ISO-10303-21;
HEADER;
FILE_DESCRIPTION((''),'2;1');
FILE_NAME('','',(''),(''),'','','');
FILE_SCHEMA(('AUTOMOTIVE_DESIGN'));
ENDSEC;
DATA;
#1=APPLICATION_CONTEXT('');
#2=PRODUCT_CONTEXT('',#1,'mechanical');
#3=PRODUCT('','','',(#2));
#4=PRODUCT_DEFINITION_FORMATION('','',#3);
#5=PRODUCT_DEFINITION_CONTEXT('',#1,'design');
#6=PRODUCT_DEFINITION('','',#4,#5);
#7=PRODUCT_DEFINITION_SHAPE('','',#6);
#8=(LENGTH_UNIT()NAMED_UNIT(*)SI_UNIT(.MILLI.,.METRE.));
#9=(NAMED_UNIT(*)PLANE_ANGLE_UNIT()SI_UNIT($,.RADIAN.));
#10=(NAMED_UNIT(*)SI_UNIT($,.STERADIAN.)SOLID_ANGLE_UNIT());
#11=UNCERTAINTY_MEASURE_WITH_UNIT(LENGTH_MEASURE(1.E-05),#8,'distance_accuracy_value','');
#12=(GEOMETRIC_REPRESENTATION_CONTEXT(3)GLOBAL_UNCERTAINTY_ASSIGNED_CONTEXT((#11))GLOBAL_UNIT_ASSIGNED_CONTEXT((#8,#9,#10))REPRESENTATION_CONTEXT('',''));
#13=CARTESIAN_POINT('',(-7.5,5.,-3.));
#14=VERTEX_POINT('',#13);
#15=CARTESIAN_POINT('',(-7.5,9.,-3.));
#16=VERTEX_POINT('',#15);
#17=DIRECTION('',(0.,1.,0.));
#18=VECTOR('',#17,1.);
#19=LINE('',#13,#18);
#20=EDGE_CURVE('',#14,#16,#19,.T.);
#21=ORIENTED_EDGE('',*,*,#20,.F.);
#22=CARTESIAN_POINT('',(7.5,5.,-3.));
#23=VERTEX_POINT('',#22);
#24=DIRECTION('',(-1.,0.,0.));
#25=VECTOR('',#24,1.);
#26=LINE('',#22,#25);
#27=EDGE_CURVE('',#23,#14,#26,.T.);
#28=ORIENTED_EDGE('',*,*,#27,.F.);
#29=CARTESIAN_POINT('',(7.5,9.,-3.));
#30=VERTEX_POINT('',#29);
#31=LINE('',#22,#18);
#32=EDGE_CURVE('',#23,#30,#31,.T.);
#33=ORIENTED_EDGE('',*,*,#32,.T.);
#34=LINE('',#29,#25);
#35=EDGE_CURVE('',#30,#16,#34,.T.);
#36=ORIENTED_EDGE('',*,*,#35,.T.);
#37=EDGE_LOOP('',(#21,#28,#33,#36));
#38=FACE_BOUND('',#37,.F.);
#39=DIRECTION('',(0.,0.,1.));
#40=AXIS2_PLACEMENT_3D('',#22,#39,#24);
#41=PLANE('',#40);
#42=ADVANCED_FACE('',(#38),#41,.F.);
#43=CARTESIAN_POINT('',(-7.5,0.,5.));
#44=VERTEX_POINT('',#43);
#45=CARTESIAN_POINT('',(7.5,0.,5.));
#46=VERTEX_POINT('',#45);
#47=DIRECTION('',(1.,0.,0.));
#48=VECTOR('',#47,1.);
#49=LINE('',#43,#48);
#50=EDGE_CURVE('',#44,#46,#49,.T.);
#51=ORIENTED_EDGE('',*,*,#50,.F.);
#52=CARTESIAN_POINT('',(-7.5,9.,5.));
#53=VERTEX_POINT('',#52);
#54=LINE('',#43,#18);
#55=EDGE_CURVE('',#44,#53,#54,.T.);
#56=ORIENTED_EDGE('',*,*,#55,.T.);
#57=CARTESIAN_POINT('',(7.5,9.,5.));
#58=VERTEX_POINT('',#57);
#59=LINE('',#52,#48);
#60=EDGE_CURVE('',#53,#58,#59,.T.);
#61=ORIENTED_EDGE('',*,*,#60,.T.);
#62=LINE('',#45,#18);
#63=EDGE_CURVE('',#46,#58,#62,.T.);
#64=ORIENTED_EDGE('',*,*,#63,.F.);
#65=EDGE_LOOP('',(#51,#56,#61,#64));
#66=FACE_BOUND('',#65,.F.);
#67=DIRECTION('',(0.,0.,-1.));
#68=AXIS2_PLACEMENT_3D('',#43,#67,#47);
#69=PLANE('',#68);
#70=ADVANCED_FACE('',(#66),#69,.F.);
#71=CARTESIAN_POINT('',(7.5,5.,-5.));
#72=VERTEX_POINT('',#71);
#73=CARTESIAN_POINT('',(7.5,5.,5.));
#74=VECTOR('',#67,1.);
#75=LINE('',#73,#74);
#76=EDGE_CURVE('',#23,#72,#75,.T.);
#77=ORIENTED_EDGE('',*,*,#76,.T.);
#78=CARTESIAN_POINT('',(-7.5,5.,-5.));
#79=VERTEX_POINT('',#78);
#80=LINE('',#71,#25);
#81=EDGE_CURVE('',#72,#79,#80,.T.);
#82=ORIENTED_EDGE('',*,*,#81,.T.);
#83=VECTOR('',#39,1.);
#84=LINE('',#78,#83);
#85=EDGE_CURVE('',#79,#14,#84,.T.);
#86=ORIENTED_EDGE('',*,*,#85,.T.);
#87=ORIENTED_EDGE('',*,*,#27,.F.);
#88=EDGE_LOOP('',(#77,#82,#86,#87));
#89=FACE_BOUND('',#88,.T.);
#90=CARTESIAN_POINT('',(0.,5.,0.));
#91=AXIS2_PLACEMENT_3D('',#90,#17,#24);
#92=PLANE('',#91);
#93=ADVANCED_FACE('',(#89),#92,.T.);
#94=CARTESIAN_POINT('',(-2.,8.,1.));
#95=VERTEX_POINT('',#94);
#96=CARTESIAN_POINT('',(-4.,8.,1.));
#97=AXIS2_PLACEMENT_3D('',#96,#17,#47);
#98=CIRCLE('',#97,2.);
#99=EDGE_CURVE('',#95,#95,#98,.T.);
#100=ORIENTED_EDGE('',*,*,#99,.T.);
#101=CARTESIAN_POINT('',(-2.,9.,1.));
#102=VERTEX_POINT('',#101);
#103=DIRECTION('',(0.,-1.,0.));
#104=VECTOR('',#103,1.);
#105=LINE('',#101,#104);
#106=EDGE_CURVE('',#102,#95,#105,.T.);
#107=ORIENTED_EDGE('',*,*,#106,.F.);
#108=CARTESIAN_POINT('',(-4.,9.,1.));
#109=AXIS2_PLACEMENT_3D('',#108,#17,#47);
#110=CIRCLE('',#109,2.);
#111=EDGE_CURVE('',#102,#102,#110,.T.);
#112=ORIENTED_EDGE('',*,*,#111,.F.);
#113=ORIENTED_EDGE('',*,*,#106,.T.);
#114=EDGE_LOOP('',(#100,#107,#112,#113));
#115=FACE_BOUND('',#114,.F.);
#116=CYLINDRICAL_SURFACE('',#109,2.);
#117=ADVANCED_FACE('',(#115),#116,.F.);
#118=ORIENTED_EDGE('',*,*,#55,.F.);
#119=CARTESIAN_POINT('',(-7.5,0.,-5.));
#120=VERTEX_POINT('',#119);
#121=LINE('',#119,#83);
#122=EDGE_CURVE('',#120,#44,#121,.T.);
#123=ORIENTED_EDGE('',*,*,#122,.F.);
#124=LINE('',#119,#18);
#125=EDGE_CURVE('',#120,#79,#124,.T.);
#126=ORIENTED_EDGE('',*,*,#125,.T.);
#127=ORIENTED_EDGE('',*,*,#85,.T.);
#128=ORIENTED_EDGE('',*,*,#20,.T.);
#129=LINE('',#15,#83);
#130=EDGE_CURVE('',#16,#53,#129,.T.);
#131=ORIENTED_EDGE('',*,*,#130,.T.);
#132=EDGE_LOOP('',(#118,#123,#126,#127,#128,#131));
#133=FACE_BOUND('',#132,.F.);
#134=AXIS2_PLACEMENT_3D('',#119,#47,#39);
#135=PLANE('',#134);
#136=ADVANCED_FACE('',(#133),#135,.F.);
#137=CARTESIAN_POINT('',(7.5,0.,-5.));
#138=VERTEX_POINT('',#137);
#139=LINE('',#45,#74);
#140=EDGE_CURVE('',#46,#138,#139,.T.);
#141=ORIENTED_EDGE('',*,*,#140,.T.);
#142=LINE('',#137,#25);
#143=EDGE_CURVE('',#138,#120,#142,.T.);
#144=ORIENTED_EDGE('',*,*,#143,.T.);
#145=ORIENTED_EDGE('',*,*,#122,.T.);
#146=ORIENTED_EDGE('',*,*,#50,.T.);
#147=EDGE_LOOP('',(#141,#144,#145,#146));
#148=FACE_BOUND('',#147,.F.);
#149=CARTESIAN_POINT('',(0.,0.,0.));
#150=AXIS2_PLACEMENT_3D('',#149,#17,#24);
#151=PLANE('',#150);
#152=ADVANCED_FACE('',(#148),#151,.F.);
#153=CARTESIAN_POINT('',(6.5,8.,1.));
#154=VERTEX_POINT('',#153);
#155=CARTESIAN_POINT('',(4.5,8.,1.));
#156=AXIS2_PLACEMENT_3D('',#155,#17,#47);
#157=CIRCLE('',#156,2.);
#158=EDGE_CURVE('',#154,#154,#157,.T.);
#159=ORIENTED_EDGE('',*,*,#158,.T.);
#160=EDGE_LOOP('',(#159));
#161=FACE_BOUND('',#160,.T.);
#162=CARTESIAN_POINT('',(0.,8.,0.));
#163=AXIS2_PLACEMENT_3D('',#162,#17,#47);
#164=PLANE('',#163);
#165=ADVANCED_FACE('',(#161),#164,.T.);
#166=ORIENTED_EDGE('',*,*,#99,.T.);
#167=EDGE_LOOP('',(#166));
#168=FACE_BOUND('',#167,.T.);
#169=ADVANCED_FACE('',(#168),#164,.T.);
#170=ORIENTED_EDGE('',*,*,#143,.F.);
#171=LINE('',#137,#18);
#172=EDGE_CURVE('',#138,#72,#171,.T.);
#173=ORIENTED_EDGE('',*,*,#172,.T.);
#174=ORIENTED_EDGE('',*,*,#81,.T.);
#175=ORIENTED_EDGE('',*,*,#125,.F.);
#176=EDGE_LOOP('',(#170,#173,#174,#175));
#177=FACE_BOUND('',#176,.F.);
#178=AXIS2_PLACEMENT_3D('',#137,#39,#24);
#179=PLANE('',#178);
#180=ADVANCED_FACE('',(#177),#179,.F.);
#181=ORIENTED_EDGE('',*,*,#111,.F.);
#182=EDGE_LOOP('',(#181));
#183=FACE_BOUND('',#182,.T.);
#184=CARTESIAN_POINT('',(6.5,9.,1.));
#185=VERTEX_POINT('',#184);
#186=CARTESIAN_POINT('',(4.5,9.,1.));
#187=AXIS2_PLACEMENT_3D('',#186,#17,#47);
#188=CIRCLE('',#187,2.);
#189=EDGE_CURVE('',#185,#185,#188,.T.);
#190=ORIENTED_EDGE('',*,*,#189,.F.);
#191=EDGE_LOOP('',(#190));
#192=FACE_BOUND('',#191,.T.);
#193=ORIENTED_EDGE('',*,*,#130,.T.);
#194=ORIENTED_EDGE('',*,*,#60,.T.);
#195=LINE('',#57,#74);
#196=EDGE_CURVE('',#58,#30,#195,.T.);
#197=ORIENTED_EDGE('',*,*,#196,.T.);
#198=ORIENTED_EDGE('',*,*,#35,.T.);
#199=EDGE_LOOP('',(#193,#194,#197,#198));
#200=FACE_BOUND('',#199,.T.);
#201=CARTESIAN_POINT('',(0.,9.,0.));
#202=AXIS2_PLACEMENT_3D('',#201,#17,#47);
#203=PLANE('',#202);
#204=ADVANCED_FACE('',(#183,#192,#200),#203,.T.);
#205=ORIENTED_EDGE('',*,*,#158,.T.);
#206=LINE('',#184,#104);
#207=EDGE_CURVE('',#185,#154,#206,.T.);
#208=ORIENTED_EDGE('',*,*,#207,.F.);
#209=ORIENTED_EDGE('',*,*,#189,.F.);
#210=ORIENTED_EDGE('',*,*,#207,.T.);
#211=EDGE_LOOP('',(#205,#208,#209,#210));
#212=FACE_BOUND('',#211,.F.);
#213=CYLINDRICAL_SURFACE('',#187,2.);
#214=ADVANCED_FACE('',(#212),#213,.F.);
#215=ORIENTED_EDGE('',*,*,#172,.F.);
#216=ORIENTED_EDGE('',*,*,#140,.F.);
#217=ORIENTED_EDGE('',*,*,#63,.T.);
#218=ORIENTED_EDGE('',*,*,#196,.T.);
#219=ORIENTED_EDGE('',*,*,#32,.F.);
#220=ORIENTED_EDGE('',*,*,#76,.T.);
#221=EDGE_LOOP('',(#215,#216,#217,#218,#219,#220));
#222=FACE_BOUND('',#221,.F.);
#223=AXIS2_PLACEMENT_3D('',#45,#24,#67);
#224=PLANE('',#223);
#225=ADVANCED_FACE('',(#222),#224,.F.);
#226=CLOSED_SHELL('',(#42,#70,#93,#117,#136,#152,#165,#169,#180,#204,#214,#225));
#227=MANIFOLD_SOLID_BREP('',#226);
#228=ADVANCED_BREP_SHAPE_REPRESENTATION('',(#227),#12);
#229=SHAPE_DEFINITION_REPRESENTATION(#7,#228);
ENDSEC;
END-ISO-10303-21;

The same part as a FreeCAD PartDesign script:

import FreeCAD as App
import Part
import Sketcher

V = App.Vector

doc = App.newDocument("Part")
body = doc.addObject("PartDesign::Body", "Body")

# Sketch on XZ plane
sketch1 = body.newObject("Sketcher::SketchObject", "Sketch")
sketch1.AttachmentSupport = (doc.getObject("XZ_Plane"), [""])
sketch1.MapMode = "FlatFace"
sketch1.addGeometry([
    Part.LineSegment(V(-8, -5, 0), V(-8, 5, 0)),
    Part.LineSegment(V(-8, 5, 0), V(8, 5, 0)),
    Part.LineSegment(V(8, 5, 0), V(8, -5, 0)),
    Part.LineSegment(V(8, -5, 0), V(-8, -5, 0)),
], False)
sketch1.addConstraint([
    Sketcher.Constraint("Coincident", 0, 2, 1, 1),
    Sketcher.Constraint("Coincident", 1, 2, 2, 1),
    Sketcher.Constraint("Coincident", 2, 2, 3, 1),
    Sketcher.Constraint("Coincident", 3, 2, 0, 1),
    Sketcher.Constraint("Vertical", 0),
    Sketcher.Constraint("Horizontal", 1),
    Sketcher.Constraint("Vertical", 2),
    Sketcher.Constraint("Horizontal", 3),
    Sketcher.Constraint("Symmetric", 0, 2, 2, 2, -1, 1),
    Sketcher.Constraint("DistanceX", 1, 1, 1, 2, 15.0),
    Sketcher.Constraint("DistanceY", 0, 1, 0, 2, 10.0),
])
pad1 = body.newObject("PartDesign::Pad", "Pad")
pad1.Profile = sketch1
pad1.Length = 5
pad1.Reversed = True

# Sketch on XZ plane
sketch2 = body.newObject("Sketcher::SketchObject", "Sketch001")
sketch2.AttachmentSupport = (doc.getObject("XZ_Plane"), [""])
sketch2.MapMode = "FlatFace"
sketch2.AttachmentOffset = App.Placement(V(0, 0, -5), App.Rotation())
sketch2.addGeometry([
    Part.LineSegment(V(-8, -3, 0), V(-8, 5, 0)),
    Part.LineSegment(V(-8, 5, 0), V(8, 5, 0)),
    Part.LineSegment(V(8, 5, 0), V(8, -3, 0)),
    Part.LineSegment(V(8, -3, 0), V(-8, -3, 0)),
], False)
sketch2.addConstraint([
    Sketcher.Constraint("Coincident", 0, 2, 1, 1),
    Sketcher.Constraint("Coincident", 1, 2, 2, 1),
    Sketcher.Constraint("Coincident", 2, 2, 3, 1),
    Sketcher.Constraint("Coincident", 3, 2, 0, 1),
    Sketcher.Constraint("Vertical", 0),
    Sketcher.Constraint("Horizontal", 1),
    Sketcher.Constraint("Vertical", 2),
    Sketcher.Constraint("Horizontal", 3),
    Sketcher.Constraint("DistanceY", 0, 1, 0, 2, 8.0),
    Sketcher.Constraint("DistanceX", 1, 1, 1, 2, 15.0),
    Sketcher.Constraint("DistanceY", -1, 1, 0, 2, 5.0),
    Sketcher.Constraint("DistanceX", 0, 2, -1, 1, 7.5),
])
pad2 = body.newObject("PartDesign::Pad", "Pad001")
pad2.Profile = sketch2
pad2.Length = 4
pad2.Reversed = True

# Sketch on XZ plane
sketch3 = body.newObject("Sketcher::SketchObject", "Sketch002")
sketch3.AttachmentSupport = (doc.getObject("XZ_Plane"), [""])
sketch3.MapMode = "FlatFace"
sketch3.AttachmentOffset = App.Placement(V(0, 0, -9), App.Rotation())
sketch3.addGeometry([
    Part.Circle(V(-4, 1, 0), V(0, 0, 1), 2),
    Part.Circle(V(4.5, 1, 0), V(0, 0, 1), 2),
], False)
sketch3.addConstraint([
    Sketcher.Constraint("Equal", 0, 1),
    Sketcher.Constraint("Horizontal", 0, 3, 1, 3),
    Sketcher.Constraint("Diameter", 0, 4.0),
    Sketcher.Constraint("DistanceX", 0, 3, -1, 1, 4.0),
    Sketcher.Constraint("DistanceY", -1, 1, 0, 3, 1.0),
    Sketcher.Constraint("DistanceX", -1, 1, 1, 3, 4.5),
])
pocket1 = body.newObject("PartDesign::Pocket", "Pocket")
pocket1.Profile = sketch3
pocket1.Length = 1
pocket1.Reversed = True

doc.recompute()
